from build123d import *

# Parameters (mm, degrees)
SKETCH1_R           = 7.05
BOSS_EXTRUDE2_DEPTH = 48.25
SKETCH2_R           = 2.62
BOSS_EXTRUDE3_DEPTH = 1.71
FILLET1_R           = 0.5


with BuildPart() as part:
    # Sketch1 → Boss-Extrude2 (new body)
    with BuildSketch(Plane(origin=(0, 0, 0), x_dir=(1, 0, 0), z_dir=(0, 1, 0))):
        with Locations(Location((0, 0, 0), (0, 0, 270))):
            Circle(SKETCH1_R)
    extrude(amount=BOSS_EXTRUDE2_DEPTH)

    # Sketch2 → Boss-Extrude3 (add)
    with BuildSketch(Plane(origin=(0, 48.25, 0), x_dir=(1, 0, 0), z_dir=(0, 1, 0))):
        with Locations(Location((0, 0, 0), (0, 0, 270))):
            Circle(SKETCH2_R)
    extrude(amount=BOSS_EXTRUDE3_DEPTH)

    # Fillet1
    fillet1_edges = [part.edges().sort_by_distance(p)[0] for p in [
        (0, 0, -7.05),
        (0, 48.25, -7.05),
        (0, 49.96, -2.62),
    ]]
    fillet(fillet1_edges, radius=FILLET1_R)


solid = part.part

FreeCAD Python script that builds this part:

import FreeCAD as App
import Part
import Sketcher
Q = App.Units.Quantity


def edges_at(feature, points):
    """Names of the edges that pass closest to the given points."""
    edges = feature.Shape.Edges
    near = lambda p: min(range(len(edges)), key=lambda i: edges[i].distToShape(Part.Vertex(*p))[0])
    return sorted({f"Edge{near(p) + 1}" for p in points})

doc = App.newDocument("Part")
body = doc.addObject("PartDesign::Body", "Body")

sketch1 = body.newObject("Sketcher::SketchObject", "Sketch")
sketch1.AttachmentSupport = (doc.getObject("XZ_Plane"), [""])
sketch1.MapMode = "FlatFace"
sketch1.addGeometry(Part.Circle(App.Vector(0, 0, 0), App.Vector(0, 0, 1), 7.05), False)
sketch1.addConstraint([
    Sketcher.Constraint("Coincident", 0, 3, -1, 1),
    Sketcher.Constraint("Diameter", 0, Q("14.1 mm")),
])
pad1 = body.newObject("PartDesign::Pad", "Pad")
pad1.Profile = sketch1
pad1.Length = 48.25
pad1.Reversed = True

sketch2 = body.newObject("Sketcher::SketchObject", "Sketch001")
sketch2.AttachmentSupport = (doc.getObject("XZ_Plane"), [""])
sketch2.MapMode = "FlatFace"
sketch2.AttachmentOffset = App.Placement(App.Vector(0, 0, -48.25), App.Rotation())
sketch2.addGeometry(Part.Circle(App.Vector(0, 0, 0), App.Vector(0, 0, 1), 2.62), False)
sketch2.addConstraint([
    Sketcher.Constraint("Coincident", 0, 3, -1, 1),
    Sketcher.Constraint("Diameter", 0, Q("5.24 mm")),
])
pad2 = body.newObject("PartDesign::Pad", "Pad001")
pad2.Profile = sketch2
pad2.Length = 1.71
pad2.Reversed = True
doc.recompute()

fillet = body.newObject("PartDesign::Fillet", "Fillet")
fillet.Base = (pad2, edges_at(pad2, [(0, 0, -7.05), (0, 48.25, -7.05), (0, 49.96, -2.62)]))
fillet.Radius = 0.5

doc.recompute()
